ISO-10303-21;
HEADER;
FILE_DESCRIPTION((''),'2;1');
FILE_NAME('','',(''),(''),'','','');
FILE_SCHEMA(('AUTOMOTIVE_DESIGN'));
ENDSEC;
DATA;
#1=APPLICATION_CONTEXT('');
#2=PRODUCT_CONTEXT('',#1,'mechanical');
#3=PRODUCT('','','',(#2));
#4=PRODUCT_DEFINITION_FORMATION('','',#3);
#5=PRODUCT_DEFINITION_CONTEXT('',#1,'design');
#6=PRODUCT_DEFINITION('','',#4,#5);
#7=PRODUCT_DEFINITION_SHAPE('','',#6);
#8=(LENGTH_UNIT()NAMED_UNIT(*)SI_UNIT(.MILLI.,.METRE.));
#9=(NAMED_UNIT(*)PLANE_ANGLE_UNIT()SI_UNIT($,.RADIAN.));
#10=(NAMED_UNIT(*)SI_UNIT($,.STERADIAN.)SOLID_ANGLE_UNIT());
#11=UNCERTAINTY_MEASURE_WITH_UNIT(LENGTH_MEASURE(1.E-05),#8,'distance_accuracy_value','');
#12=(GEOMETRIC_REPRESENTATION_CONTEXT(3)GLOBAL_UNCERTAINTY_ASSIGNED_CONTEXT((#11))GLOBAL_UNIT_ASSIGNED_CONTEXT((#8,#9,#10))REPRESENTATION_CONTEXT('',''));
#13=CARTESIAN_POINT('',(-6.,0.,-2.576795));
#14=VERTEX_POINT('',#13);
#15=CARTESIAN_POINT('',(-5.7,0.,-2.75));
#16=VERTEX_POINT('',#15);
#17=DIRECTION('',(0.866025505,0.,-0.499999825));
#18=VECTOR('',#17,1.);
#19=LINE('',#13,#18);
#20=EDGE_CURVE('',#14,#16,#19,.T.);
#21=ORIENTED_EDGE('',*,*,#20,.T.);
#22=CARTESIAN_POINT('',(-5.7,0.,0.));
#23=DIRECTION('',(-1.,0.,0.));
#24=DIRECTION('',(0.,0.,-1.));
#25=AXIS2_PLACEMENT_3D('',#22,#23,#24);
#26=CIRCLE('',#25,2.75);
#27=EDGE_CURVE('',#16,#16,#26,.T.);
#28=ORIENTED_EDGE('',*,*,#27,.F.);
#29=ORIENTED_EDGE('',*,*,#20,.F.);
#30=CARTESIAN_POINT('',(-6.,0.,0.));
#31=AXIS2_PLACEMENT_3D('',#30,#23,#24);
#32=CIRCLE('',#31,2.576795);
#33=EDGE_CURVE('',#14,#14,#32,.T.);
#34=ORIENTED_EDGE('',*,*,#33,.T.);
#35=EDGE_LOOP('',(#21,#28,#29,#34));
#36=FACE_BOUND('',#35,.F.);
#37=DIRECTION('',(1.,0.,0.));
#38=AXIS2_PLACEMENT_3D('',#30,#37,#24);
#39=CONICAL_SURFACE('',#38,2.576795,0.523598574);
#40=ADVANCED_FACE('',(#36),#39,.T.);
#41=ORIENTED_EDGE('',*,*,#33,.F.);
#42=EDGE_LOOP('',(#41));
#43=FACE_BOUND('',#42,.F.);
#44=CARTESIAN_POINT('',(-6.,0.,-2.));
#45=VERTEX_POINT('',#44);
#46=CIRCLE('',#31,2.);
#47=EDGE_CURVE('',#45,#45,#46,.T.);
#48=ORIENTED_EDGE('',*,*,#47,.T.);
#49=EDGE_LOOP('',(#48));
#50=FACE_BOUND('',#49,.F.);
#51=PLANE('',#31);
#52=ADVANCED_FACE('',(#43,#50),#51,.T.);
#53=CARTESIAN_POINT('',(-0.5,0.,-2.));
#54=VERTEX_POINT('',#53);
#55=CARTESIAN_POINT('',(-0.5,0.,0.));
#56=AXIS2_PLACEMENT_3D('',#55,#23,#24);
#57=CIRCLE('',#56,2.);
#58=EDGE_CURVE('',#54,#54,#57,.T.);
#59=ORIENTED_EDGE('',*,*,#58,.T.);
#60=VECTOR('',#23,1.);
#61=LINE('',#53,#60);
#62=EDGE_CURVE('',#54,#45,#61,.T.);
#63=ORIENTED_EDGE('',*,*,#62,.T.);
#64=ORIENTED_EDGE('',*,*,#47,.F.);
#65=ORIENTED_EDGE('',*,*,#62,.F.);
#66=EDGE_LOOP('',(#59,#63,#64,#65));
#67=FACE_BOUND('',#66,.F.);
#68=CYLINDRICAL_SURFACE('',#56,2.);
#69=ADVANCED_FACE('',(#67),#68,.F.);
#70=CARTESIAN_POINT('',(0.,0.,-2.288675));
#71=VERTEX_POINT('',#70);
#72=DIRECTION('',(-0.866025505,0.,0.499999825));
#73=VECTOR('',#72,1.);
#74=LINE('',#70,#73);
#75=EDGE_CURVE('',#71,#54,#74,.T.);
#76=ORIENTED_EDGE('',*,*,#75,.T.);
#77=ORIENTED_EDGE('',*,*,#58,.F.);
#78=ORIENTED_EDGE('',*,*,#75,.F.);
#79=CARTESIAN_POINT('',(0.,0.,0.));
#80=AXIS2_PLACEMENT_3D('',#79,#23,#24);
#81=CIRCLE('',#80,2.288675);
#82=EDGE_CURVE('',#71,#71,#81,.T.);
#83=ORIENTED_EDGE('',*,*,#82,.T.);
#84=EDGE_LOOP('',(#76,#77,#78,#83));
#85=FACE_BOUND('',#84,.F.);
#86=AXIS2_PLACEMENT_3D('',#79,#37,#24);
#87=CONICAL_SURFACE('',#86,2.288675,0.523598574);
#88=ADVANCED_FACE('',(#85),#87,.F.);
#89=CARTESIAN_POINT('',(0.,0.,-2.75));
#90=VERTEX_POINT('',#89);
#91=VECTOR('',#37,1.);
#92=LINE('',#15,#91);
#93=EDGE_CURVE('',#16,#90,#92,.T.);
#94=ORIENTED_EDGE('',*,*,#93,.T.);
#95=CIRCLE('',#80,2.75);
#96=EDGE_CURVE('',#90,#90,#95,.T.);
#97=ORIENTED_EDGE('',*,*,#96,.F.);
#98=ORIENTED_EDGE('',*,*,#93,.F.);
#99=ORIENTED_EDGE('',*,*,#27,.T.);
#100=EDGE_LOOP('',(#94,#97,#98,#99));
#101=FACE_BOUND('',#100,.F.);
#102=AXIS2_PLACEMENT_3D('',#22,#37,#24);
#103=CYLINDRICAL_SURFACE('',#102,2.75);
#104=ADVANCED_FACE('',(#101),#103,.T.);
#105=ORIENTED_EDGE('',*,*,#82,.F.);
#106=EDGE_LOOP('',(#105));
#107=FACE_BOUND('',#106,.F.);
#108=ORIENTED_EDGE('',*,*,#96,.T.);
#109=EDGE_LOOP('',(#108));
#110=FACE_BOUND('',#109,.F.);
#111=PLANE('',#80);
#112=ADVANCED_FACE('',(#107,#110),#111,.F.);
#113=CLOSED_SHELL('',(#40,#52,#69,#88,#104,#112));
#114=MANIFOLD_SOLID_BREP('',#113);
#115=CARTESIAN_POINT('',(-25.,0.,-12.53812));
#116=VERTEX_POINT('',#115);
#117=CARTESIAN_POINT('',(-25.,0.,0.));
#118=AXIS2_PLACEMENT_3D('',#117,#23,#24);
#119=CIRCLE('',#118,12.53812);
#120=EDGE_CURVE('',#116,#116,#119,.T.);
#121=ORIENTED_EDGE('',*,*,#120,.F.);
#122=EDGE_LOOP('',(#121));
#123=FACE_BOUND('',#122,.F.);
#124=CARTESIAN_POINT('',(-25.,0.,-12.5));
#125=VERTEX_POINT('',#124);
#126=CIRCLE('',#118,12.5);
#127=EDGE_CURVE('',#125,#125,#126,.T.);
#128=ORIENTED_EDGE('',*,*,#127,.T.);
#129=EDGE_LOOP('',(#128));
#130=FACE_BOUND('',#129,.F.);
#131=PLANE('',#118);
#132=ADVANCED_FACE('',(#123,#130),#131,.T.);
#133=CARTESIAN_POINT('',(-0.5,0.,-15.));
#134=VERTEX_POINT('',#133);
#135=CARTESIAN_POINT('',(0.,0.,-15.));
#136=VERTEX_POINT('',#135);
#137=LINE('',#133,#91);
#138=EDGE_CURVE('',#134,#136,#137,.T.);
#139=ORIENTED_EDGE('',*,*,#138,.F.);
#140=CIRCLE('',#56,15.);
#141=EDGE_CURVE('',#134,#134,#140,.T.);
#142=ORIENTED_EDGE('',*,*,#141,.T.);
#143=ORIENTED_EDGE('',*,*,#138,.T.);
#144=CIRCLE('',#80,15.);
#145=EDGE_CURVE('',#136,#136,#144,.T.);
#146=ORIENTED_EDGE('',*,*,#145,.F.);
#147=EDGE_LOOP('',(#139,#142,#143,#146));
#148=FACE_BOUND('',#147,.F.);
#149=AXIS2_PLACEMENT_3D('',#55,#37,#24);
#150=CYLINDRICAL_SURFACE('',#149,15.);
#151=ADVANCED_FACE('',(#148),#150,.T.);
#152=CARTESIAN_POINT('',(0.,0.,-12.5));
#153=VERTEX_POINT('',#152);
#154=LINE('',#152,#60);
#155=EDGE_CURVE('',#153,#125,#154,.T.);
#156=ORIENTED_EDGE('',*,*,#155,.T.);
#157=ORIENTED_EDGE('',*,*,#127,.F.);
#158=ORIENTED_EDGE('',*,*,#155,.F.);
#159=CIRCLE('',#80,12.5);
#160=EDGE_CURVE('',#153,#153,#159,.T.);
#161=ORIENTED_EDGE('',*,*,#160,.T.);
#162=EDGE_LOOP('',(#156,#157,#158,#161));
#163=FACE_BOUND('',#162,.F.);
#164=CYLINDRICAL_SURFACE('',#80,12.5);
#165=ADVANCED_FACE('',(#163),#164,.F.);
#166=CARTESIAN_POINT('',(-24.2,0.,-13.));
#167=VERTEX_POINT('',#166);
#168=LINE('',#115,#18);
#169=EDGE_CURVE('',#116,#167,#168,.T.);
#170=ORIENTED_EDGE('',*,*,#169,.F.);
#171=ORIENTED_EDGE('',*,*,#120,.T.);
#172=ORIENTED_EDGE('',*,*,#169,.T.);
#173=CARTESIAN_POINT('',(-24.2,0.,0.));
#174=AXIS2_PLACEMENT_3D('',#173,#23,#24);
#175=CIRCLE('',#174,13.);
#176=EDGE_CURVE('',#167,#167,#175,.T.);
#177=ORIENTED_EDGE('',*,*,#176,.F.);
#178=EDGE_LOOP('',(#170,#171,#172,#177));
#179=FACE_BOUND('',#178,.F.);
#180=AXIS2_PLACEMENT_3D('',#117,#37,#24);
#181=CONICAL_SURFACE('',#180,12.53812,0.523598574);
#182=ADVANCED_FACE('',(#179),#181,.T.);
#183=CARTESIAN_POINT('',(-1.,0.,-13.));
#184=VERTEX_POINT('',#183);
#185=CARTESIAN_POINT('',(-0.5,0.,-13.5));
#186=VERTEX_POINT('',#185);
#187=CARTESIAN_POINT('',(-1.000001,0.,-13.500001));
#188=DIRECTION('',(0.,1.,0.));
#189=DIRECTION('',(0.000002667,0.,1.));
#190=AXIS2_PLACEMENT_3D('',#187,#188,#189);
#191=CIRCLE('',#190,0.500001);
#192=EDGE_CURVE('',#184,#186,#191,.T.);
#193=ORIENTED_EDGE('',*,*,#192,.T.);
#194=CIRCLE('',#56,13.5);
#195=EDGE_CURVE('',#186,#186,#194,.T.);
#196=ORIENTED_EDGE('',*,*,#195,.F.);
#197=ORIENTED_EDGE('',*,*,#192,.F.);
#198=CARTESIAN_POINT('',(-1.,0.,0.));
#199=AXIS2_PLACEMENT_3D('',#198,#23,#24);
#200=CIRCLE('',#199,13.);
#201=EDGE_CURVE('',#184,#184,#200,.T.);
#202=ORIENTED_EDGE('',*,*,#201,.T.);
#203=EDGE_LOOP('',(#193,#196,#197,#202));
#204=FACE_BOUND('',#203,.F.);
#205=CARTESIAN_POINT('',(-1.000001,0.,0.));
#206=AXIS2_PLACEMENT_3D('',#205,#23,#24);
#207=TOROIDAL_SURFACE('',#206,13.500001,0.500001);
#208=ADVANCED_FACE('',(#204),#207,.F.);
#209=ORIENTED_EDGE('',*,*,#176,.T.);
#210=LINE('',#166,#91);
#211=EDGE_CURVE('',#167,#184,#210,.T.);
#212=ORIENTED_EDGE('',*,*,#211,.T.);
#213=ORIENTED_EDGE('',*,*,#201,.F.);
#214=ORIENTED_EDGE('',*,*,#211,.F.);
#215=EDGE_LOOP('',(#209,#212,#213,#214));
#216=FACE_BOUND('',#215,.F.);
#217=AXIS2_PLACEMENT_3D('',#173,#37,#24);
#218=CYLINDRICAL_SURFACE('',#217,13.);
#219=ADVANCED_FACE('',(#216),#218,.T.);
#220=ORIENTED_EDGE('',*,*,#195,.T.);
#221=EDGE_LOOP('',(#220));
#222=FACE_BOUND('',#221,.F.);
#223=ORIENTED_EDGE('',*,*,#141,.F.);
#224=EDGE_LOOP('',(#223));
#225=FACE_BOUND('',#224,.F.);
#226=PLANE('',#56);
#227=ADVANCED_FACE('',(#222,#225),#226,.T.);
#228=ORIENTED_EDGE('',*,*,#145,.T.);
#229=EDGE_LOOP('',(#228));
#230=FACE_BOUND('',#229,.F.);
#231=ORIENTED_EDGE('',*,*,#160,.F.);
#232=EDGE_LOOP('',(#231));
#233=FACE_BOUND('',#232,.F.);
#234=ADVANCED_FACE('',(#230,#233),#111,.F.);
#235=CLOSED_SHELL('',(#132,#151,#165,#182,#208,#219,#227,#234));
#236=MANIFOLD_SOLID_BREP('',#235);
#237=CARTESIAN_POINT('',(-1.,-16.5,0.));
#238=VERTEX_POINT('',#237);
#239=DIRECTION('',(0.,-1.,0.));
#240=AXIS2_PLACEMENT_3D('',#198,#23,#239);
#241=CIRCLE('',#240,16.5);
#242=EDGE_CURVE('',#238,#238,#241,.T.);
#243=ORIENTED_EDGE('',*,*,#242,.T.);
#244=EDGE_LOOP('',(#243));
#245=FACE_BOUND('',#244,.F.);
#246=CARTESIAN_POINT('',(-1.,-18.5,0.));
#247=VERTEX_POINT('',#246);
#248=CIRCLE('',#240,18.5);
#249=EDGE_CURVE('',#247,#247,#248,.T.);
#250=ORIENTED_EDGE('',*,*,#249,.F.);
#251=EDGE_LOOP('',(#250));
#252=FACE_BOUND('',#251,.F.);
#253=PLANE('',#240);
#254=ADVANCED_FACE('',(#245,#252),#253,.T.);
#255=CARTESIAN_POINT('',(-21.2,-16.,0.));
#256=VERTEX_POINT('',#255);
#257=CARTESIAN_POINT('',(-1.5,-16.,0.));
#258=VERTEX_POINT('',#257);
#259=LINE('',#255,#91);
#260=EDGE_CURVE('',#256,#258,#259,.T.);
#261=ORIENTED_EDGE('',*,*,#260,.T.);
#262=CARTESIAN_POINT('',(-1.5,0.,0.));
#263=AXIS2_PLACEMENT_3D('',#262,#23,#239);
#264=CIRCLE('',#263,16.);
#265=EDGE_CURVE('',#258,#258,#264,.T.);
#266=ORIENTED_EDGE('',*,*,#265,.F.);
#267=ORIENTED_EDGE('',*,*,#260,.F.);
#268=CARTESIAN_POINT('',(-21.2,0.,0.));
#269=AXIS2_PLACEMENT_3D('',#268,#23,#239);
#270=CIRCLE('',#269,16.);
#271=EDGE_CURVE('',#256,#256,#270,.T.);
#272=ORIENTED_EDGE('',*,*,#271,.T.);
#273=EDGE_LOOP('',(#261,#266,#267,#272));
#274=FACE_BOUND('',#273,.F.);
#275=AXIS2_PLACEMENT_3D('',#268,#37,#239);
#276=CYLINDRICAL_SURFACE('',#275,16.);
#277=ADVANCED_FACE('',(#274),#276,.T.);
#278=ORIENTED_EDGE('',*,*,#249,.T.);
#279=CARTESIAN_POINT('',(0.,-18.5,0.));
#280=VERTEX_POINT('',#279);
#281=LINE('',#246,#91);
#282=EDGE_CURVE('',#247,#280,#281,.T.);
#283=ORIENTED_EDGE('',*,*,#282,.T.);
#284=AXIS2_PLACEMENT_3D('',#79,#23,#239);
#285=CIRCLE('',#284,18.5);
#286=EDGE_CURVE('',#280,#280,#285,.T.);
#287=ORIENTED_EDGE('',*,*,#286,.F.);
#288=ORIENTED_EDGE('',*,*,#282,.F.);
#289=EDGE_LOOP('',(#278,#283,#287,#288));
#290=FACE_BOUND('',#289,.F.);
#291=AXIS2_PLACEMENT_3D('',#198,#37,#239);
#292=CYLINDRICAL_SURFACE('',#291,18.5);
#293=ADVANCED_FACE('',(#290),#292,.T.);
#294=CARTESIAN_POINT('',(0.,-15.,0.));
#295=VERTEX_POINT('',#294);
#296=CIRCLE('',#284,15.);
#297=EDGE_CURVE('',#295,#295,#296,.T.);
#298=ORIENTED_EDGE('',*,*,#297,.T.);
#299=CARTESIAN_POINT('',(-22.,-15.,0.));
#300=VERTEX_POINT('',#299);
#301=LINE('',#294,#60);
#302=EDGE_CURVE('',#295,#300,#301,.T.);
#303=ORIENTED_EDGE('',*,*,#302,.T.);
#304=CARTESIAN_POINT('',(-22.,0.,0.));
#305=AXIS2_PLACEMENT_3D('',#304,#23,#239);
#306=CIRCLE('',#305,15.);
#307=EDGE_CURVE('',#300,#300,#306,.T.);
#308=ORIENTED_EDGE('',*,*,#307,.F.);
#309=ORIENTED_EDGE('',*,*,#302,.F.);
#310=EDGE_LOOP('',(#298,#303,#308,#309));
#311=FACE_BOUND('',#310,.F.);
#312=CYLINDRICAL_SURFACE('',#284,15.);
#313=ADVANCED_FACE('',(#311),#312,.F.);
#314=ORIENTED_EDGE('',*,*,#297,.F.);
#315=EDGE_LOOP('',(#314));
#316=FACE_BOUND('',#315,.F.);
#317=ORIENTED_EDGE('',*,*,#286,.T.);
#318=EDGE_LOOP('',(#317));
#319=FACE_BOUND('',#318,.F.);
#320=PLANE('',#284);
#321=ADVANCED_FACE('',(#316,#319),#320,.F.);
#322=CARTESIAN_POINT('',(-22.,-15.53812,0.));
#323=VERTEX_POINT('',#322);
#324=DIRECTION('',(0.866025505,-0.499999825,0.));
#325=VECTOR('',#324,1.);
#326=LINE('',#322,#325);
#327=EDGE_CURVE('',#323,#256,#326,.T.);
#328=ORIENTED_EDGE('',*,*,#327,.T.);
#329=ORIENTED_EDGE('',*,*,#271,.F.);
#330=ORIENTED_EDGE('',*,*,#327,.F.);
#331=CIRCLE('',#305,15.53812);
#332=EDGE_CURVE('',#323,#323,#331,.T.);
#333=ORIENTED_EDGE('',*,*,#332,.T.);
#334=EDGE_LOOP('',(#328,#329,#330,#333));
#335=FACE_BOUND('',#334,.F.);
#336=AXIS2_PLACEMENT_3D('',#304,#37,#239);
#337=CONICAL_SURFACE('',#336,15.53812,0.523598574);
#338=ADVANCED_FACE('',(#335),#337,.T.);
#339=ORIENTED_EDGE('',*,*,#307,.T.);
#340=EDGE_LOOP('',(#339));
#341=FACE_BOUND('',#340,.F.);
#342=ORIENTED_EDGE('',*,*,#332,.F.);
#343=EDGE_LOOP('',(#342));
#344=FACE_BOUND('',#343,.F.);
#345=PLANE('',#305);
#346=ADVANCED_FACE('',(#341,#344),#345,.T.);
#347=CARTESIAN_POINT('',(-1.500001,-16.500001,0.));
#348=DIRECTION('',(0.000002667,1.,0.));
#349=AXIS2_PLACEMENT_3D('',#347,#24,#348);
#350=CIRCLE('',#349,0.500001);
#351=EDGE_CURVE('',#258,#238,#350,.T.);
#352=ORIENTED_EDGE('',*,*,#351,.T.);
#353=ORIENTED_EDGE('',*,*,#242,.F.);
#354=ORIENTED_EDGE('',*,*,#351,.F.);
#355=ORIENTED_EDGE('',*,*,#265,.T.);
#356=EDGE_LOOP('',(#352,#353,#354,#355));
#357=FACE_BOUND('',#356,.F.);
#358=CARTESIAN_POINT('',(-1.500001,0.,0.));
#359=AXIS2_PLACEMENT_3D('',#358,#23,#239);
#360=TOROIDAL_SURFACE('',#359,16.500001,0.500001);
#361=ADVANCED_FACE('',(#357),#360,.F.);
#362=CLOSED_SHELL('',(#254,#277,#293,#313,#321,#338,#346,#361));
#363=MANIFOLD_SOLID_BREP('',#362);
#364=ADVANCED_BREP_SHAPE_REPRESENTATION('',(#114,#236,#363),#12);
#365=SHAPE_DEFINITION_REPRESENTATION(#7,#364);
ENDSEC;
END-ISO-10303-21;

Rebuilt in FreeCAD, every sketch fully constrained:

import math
import FreeCAD as App
import Part
import Sketcher
Q = App.Units.Quantity


def add_polygon(sketch, points):
    """Adds a closed chain of lines whose ends are joined by coincident constraints."""
    first, n = sketch.GeometryCount, len(points)
    for a, b in zip(points, points[1:] + points[:1]):
        sketch.addGeometry(Part.LineSegment(App.Vector(*a, 0), App.Vector(*b, 0)), False)
    for i in range(n):
        sketch.addConstraint(Sketcher.Constraint("Coincident", first + i, 2, first + (i + 1) % n, 1))

doc = App.newDocument("Part")
body = doc.addObject("PartDesign::Body", "Body")

sketch1 = body.newObject("Sketcher::SketchObject", "Sketch")
sketch1.AttachmentSupport = (doc.getObject("XZ_Plane"), [""])
sketch1.MapMode = "FlatFace"
sketch1.addGeometry([
    Part.LineSegment(App.Vector(0, -15, 0), App.Vector(0, -12.5, 0)),
    Part.LineSegment(App.Vector(0, -12.5, 0), App.Vector(-25, -12.5, 0)),
    Part.LineSegment(App.Vector(-25, -12.5, 0), App.Vector(-25, -12.538, 0)),
    Part.LineSegment(App.Vector(-25, -12.538, 0), App.Vector(-24.2, -13, 0)),
    Part.LineSegment(App.Vector(-24.2, -13, 0), App.Vector(-1, -13, 0)),
    Part.ArcOfCircle(Part.Circle(App.Vector(-1, -13.5, 0), App.Vector(0, 0, 1), 0.5), math.radians(0), math.radians(90)),
    Part.LineSegment(App.Vector(-0.5, -13.5, 0), App.Vector(-0.5, -15, 0)),
    Part.LineSegment(App.Vector(-0.5, -15, 0), App.Vector(0, -15, 0)),
], False)
sketch1.addConstraint([
    Sketcher.Constraint("Coincident", 0, 2, 1, 1),
    Sketcher.Constraint("Coincident", 1, 2, 2, 1),
    Sketcher.Constraint("Coincident", 2, 2, 3, 1),
    Sketcher.Constraint("Coincident", 3, 2, 4, 1),
    Sketcher.Constraint("Coincident", 4, 2, 5, 2),
    Sketcher.Constraint("Coincident", 5, 1, 6, 1),
    Sketcher.Constraint("Coincident", 6, 2, 7, 1),
    Sketcher.Constraint("Coincident", 7, 2, 0, 1),
    Sketcher.Constraint("Vertical", 0),
    Sketcher.Constraint("Horizontal", 1),
    Sketcher.Constraint("Vertical", 2),
    Sketcher.Constraint("Horizontal", 4),
    Sketcher.Constraint("Vertical", 6),
    Sketcher.Constraint("Horizontal", 7),
    Sketcher.Constraint("PointOnObject", 0, 2, -2),
    Sketcher.Constraint("Vertical", 5, 3, 4, 2),
    Sketcher.Constraint("Radius", 5, 0.500001),
    Sketcher.Constraint("DistanceX", 1, 2, 1, 1, 25.0),
    Sketcher.Constraint("Angle", 3, Q("-29.999988 deg")),
    Sketcher.Constraint("DistanceX", 4, 1, 4, 2, 23.2),
    Sketcher.Constraint("DistanceX", 7, 1, 7, 2, 0.5),
    Sketcher.Constraint("DistanceY", 0, 1, 0, 2, 2.5),
    Sketcher.Constraint("DistanceY", 6, 2, 6, 1, 1.5),
    Sketcher.Constraint("DistanceY", 3, 2, -1, 1, 13.0),
    Sketcher.Constraint("DistanceY", 6, 2, -1, 1, 15.0),
])
revolution = body.newObject("PartDesign::Revolution", "Revolution")
revolution.Profile = sketch1
revolution.ReferenceAxis = (sketch1, ["H_Axis"])
revolution.Angle = 360
body2 = doc.addObject("PartDesign::Body", "Body001")

sketch2 = body2.newObject("Sketcher::SketchObject", "Sketch001")
sketch2.AttachmentSupport = (doc.getObject("XZ_Plane001"), [""])
sketch2.MapMode = "FlatFace"
add_polygon(sketch2, [(0, -2.75), (0, -2.29), (-0.5, -2), (-6, -2), (-6, -2.58), (-5.7, -2.75)])
sketch2.addConstraint([
    Sketcher.Constraint("Vertical", 0),
    Sketcher.Constraint("Horizontal", 2),
    Sketcher.Constraint("Vertical", 3),
    Sketcher.Constraint("Horizontal", 5),
    Sketcher.Constraint("PointOnObject", 0, 2, -2),
    Sketcher.Constraint("Parallel", 1, 4),
    Sketcher.Constraint("Angle", 1, Q("150.000012 deg")),
    Sketcher.Constraint("DistanceX", 2, 2, 2, 1, 5.5),
    Sketcher.Constraint("DistanceX", 5, 1, 5, 2, 5.7),
    Sketcher.Constraint("DistanceY", 1, 2, -1, 1, 2.0),
    Sketcher.Constraint("DistanceX", 2, 2, -1, 1, 6.0),
    Sketcher.Constraint("DistanceY", 4, 2, -1, 1, 2.75),
])
revolution2 = body2.newObject("PartDesign::Revolution", "Revolution001")
revolution2.Profile = sketch2
revolution2.ReferenceAxis = (sketch2, ["H_Axis"])
revolution2.Angle = 360
body3 = doc.addObject("PartDesign::Body", "Body002")

sketch3 = body3.newObject("Sketcher::SketchObject", "Sketch002")
sketch3.AttachmentSupport = (doc.getObject("XY_Plane002"), [""])
sketch3.MapMode = "FlatFace"
sketch3.addGeometry([
    Part.LineSegment(App.Vector(0, -18.5, 0), App.Vector(0, -15, 0)),
    Part.LineSegment(App.Vector(0, -15, 0), App.Vector(-22, -15, 0)),
    Part.LineSegment(App.Vector(-22, -15, 0), App.Vector(-22, -15.5, 0)),
    Part.LineSegment(App.Vector(-22, -15.5, 0), App.Vector(-21.2, -16, 0)),
    Part.LineSegment(App.Vector(-21.2, -16, 0), App.Vector(-1.5, -16, 0)),
    Part.ArcOfCircle(Part.Circle(App.Vector(-1.5, -16.5, 0), App.Vector(0, 0, 1), 0.5), math.radians(0), math.radians(90)),
    Part.LineSegment(App.Vector(-1, -16.5, 0), App.Vector(-1, -18.5, 0)),
    Part.LineSegment(App.Vector(-1, -18.5, 0), App.Vector(0, -18.5, 0)),
], False)
sketch3.addConstraint([
    Sketcher.Constraint("Coincident", 0, 2, 1, 1),
    Sketcher.Constraint("Coincident", 1, 2, 2, 1),
    Sketcher.Constraint("Coincident", 2, 2, 3, 1),
    Sketcher.Constraint("Coincident", 3, 2, 4, 1),
    Sketcher.Constraint("Coincident", 4, 2, 5, 2),
    Sketcher.Constraint("Coincident", 5, 1, 6, 1),
    Sketcher.Constraint("Coincident", 6, 2, 7, 1),
    Sketcher.Constraint("Coincident", 7, 2, 0, 1),
    Sketcher.Constraint("Vertical", 0),
    Sketcher.Constraint("Horizontal", 1),
    Sketcher.Constraint("Vertical", 2),
    Sketcher.Constraint("Horizontal", 4),
    Sketcher.Constraint("Vertical", 6),
    Sketcher.Constraint("Horizontal", 7),
    Sketcher.Constraint("PointOnObject", 0, 2, -2),
    Sketcher.Constraint("Vertical", 5, 3, 4, 2),
    Sketcher.Constraint("Radius", 5, 0.500001),
    Sketcher.Constraint("DistanceX", 1, 2, 1, 1, 22.0),
    Sketcher.Constraint("DistanceX", 7, 1, 7, 2, 1.0),
    Sketcher.Constraint("DistanceY", 6, 2, 6, 1, 2.0),
    Sketcher.Constraint("Angle", 3, Q("-29.999988 deg")),
    Sketcher.Constraint("DistanceX", 4, 1, 4, 2, 19.7),
    Sketcher.Constraint("DistanceY", 0, 1, 0, 2, 3.5),
    Sketcher.Constraint("DistanceY", 0, 2, -1, 1, 15.0),
    Sketcher.Constraint("DistanceY", 3, 2, -1, 1, 16.0),
])
revolution3 = body3.newObject("PartDesign::Revolution", "Revolution002")
revolution3.Profile = sketch3
revolution3.ReferenceAxis = (sketch3, ["H_Axis"])
revolution3.Angle = 360

doc.recompute()
